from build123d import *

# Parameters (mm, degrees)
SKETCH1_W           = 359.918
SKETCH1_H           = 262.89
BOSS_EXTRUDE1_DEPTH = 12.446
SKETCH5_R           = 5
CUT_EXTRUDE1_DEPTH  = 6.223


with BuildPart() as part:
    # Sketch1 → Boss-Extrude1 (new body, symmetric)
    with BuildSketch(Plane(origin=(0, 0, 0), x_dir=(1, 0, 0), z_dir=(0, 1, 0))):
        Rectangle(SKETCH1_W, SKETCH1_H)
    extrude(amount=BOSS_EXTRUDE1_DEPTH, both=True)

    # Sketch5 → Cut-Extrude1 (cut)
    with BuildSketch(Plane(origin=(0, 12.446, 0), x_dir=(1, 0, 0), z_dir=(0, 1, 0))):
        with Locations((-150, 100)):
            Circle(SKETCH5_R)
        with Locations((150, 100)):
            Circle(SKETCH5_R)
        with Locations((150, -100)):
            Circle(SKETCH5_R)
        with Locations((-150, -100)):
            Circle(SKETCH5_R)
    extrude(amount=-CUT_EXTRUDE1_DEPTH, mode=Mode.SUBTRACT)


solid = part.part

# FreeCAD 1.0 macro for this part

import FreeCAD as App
import Part
import Sketcher
from FreeCAD import Vector
Q = App.Units.Quantity

doc = App.newDocument("Part")
body = doc.addObject("PartDesign::Body", "Body")

sketch1 = body.newObject("Sketcher::SketchObject", "Sketch")
sketch1.AttachmentSupport = (doc.getObject("XZ_Plane"), [""])
sketch1.MapMode = "FlatFace"
sketch1.addGeometry(Part.LineSegment(Vector(-180, -131, 0), Vector(-180, 131, 0)), False)
sketch1.addGeometry(Part.LineSegment(Vector(-180, 131, 0), Vector(180, 131, 0)), False)
sketch1.addGeometry(Part.LineSegment(Vector(180, 131, 0), Vector(180, -131, 0)), False)
sketch1.addGeometry(Part.LineSegment(Vector(180, -131, 0), Vector(-180, -131, 0)), False)
sketch1.addConstraint(Sketcher.Constraint("Coincident", 0, 2, 1, 1))
sketch1.addConstraint(Sketcher.Constraint("Coincident", 1, 2, 2, 1))
sketch1.addConstraint(Sketcher.Constraint("Coincident", 2, 2, 3, 1))
sketch1.addConstraint(Sketcher.Constraint("Coincident", 3, 2, 0, 1))
sketch1.addConstraint(Sketcher.Constraint("Vertical", 0))
sketch1.addConstraint(Sketcher.Constraint("Horizontal", 1))
sketch1.addConstraint(Sketcher.Constraint("Vertical", 2))
sketch1.addConstraint(Sketcher.Constraint("Horizontal", 3))
sketch1.addConstraint(Sketcher.Constraint("Symmetric", 0, 2, 2, 2, -1, 1))
sketch1.addConstraint(Sketcher.Constraint("DistanceX", 1, 1, 1, 2, Q("14.17 in")))
sketch1.addConstraint(Sketcher.Constraint("DistanceY", 0, 1, 0, 2, Q("10.35 in")))
pad1 = body.newObject("PartDesign::Pad", "Pad")
pad1.Profile = sketch1
pad1.Length = Q("0.98 in")
pad1.Midplane = True

sketch2 = body.newObject("Sketcher::SketchObject", "Sketch001")
sketch2.AttachmentSupport = (doc.getObject("XZ_Plane"), [""])
sketch2.MapMode = "FlatFace"
sketch2.AttachmentOffset = App.Placement(Vector(0, 0, -0.49 * 25.4), App.Rotation())
sketch2.addGeometry(Part.Circle(Vector(-150, -100, 0), Vector(0, 0, 1), 5), False)
sketch2.addGeometry(Part.Circle(Vector(150, -100, 0), Vector(0, 0, 1), 5), False)
sketch2.addGeometry(Part.Circle(Vector(150, 100, 0), Vector(0, 0, 1), 5), False)
sketch2.addGeometry(Part.Circle(Vector(-150, 100, 0), Vector(0, 0, 1), 5), False)
sketch2.addConstraint(Sketcher.Constraint("Equal", 0, 1))
sketch2.addConstraint(Sketcher.Constraint("Equal", 1, 2))
sketch2.addConstraint(Sketcher.Constraint("Equal", 2, 3))
sketch2.addConstraint(Sketcher.Constraint("Symmetric", 0, 3, 2, 3, -1, 1))
sketch2.addConstraint(Sketcher.Constraint("Symmetric", 1, 3, 3, 3, -1, 1))
sketch2.addConstraint(Sketcher.Constraint("Symmetric", 0, 3, 1, 3, -2))
sketch2.addConstraint(Sketcher.Constraint("Diameter", 0, 10.0))
sketch2.addConstraint(Sketcher.Constraint("DistanceX", 0, 3, -1, 1, 150.0))
sketch2.addConstraint(Sketcher.Constraint("DistanceY", 0, 3, -1, 1, 100.0))
pocket1 = body.newObject("PartDesign::Pocket", "Pocket")
pocket1.Profile = sketch2
pocket1.Length = Q("0.245 in")
pocket1.Reversed = True

doc.recompute()
